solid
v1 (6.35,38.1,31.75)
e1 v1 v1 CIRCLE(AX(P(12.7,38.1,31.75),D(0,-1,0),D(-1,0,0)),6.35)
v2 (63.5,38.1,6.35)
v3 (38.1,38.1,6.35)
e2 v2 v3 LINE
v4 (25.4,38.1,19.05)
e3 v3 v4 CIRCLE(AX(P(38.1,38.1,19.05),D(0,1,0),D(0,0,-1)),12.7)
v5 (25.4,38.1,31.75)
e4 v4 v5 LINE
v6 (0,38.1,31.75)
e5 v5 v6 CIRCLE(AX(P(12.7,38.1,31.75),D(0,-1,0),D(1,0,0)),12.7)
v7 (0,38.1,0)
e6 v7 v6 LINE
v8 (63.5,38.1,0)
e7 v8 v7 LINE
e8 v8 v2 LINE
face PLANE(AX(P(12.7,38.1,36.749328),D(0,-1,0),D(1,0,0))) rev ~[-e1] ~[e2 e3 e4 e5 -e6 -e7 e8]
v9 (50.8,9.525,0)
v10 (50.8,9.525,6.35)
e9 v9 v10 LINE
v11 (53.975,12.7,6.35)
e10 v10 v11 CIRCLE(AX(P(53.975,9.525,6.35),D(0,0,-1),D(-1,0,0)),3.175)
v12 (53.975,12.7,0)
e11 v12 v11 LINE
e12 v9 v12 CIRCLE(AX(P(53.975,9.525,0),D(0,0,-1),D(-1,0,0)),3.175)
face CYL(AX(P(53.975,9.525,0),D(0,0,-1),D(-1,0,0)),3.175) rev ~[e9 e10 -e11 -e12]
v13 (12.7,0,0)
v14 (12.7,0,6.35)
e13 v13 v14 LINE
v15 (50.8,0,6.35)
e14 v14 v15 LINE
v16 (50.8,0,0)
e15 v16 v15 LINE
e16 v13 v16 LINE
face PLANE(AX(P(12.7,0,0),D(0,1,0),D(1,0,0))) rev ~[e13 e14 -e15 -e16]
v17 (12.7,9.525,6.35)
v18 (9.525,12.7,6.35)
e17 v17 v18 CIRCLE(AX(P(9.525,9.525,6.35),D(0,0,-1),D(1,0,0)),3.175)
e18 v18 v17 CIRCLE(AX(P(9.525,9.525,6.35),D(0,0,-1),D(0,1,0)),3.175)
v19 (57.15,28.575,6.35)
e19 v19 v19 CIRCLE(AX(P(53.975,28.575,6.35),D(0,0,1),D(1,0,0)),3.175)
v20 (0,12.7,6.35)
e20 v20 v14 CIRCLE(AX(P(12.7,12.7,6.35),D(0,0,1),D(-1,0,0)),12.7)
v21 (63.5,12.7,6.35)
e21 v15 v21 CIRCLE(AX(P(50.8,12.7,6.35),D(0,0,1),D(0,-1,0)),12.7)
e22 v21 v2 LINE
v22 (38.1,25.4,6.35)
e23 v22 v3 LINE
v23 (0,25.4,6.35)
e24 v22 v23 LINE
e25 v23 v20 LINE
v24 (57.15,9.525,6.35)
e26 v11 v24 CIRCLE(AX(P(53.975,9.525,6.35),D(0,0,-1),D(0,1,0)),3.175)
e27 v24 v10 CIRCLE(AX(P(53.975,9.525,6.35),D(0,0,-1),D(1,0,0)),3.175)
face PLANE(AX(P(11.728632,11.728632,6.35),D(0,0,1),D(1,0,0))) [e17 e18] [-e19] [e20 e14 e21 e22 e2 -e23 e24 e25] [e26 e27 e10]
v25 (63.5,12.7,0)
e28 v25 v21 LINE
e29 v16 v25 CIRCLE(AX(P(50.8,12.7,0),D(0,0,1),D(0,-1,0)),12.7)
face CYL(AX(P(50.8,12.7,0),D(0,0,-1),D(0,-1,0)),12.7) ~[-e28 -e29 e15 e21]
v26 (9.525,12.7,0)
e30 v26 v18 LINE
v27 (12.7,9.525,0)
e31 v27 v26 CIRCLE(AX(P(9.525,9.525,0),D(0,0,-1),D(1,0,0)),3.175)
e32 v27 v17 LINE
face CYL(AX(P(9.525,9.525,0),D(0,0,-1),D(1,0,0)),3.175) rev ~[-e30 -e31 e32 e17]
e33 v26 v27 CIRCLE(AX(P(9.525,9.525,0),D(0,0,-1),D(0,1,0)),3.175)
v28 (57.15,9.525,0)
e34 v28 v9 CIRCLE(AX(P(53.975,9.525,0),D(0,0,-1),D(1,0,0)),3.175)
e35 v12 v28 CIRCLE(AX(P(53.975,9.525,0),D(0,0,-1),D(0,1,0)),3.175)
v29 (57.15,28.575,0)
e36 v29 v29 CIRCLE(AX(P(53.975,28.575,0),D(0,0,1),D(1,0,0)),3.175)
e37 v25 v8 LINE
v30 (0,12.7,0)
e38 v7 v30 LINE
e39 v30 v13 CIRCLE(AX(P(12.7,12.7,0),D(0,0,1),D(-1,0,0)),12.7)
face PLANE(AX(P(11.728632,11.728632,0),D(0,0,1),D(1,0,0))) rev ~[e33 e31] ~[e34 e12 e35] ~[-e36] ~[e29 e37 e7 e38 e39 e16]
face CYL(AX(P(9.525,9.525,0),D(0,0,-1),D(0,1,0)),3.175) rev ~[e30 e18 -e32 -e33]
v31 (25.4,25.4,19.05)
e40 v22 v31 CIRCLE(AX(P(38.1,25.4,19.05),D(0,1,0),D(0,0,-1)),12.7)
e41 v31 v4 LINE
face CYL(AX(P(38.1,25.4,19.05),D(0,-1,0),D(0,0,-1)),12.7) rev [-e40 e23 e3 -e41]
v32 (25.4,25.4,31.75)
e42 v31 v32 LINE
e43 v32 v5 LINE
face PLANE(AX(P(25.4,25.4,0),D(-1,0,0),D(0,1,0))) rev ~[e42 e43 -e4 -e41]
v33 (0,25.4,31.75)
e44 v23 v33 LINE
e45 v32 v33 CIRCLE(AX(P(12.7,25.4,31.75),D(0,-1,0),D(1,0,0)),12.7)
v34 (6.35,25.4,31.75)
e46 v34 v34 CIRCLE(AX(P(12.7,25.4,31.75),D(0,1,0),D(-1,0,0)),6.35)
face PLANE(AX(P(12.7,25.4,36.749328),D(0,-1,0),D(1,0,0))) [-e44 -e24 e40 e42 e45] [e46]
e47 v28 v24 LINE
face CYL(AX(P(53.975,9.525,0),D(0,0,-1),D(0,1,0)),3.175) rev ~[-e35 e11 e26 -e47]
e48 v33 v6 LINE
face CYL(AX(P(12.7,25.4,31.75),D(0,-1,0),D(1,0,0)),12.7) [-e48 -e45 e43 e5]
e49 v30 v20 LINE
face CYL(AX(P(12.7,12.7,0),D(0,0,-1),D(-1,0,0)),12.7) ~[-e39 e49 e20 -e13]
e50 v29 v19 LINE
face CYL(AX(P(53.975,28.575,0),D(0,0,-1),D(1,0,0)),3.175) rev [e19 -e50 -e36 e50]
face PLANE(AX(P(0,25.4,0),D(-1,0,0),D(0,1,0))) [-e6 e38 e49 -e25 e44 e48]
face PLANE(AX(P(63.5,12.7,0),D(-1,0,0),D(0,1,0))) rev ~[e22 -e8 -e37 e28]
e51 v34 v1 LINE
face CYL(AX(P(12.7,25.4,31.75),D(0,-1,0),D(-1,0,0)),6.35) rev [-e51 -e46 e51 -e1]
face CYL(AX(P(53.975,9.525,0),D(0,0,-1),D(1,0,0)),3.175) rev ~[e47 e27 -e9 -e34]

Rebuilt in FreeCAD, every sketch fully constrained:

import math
import FreeCAD as App
import Part
import Sketcher
from FreeCAD import Vector
Q = App.Units.Quantity


def add_polygon(sketch, points):
    """Adds a closed chain of lines whose ends are joined by coincident constraints."""
    first, n = sketch.GeometryCount, len(points)
    for a, b in zip(points, points[1:] + points[:1]):
        sketch.addGeometry(Part.LineSegment(App.Vector(*a, 0), App.Vector(*b, 0)), False)
    for i in range(n):
        sketch.addConstraint(Sketcher.Constraint("Coincident", first + i, 2, first + (i + 1) % n, 1))

doc = App.newDocument("Part")
body = doc.addObject("PartDesign::Body", "Body")

sketch1 = doc.addObject("Sketcher::SketchObject", "Sketch")
body.addObject(sketch1)
sketch1.AttachmentSupport = (doc.XY_Plane, [""])
sketch1.MapMode = "FlatFace"
sketch1.addGeometry([
    Part.LineSegment(Vector(0, 25.4, 0), Vector(0, 12.7, 0)),
    Part.ArcOfCircle(Part.Circle(Vector(12.7, 12.7, 0), Vector(0, 0, 1), 12.7), math.radians(180), math.radians(270)),
    Part.LineSegment(Vector(12.7, 0, 0), Vector(50.8, 0, 0)),
    Part.ArcOfCircle(Part.Circle(Vector(50.8, 12.7, 0), Vector(0, 0, 1), 12.7), math.radians(-90), math.radians(0)),
    Part.LineSegment(Vector(63.5, 12.7, 0), Vector(63.5, 38.1, 0)),
    Part.LineSegment(Vector(63.5, 38.1, 0), Vector(25.4, 38.1, 0)),
    Part.LineSegment(Vector(25.4, 38.1, 0), Vector(25.4, 25.4, 0)),
    Part.LineSegment(Vector(25.4, 25.4, 0), Vector(0, 25.4, 0)),
    Part.LineSegment(Vector(9.525, 12.7, 0), Vector(12.7, 12.7, 0)),
    Part.LineSegment(Vector(12.7, 12.7, 0), Vector(12.7, 9.525, 0)),
    Part.ArcOfCircle(Part.Circle(Vector(9.525, 9.525, 0), Vector(0, 0, 1), 3.175), math.radians(90), math.radians(360)),
    Part.LineSegment(Vector(50.8, 9.525, 0), Vector(50.8, 12.7, 0)),
    Part.LineSegment(Vector(50.8, 12.7, 0), Vector(53.975, 12.7, 0)),
    Part.ArcOfCircle(Part.Circle(Vector(53.975, 9.525, 0), Vector(0, 0, 1), 3.175), math.radians(0), math.radians(90)),
    Part.ArcOfCircle(Part.Circle(Vector(53.975, 9.525, 0), Vector(0, 0, 1), 3.175), math.radians(180), math.radians(360)),
    Part.Circle(Vector(53.975, 28.575, 0), Vector(0, 0, 1), 3.175),
], False)
sketch1.addConstraint([
    Sketcher.Constraint("Tangent", 0, 2, 1, 1),
    Sketcher.Constraint("Tangent", 1, 2, 2, 1),
    Sketcher.Constraint("Tangent", 2, 2, 3, 1),
    Sketcher.Constraint("Tangent", 3, 2, 4, 1),
    Sketcher.Constraint("Coincident", 4, 2, 5, 1),
    Sketcher.Constraint("Coincident", 5, 2, 6, 1),
    Sketcher.Constraint("Coincident", 6, 2, 7, 1),
    Sketcher.Constraint("Coincident", 7, 2, 0, 1),
    Sketcher.Constraint("Coincident", 8, 2, 9, 1),
    Sketcher.Constraint("Tangent", 9, 2, 10, 2),
    Sketcher.Constraint("Tangent", 10, 1, 8, 1),
    Sketcher.Constraint("Coincident", 11, 2, 12, 1),
    Sketcher.Constraint("Tangent", 12, 2, 13, 2),
    Sketcher.Constraint("Tangent", 13, 1, 14, 2),
    Sketcher.Constraint("Tangent", 14, 1, 11, 1),
    Sketcher.Constraint("Vertical", 0),
    Sketcher.Constraint("Horizontal", 2),
    Sketcher.Constraint("Vertical", 4),
    Sketcher.Constraint("Horizontal", 5),
    Sketcher.Constraint("Vertical", 6),
    Sketcher.Constraint("Horizontal", 7),
    Sketcher.Constraint("Horizontal", 8),
    Sketcher.Constraint("Vertical", 9),
    Sketcher.Constraint("Vertical", 11),
    Sketcher.Constraint("Horizontal", 12),
    Sketcher.Constraint("Coincident", 8, 2, 1, 3),
    Sketcher.Constraint("Coincident", 11, 2, 3, 3),
    Sketcher.Constraint("Equal", 1, 3),
    Sketcher.Constraint("Equal", 10, 13),
    Sketcher.Constraint("Equal", 13, 14),
    Sketcher.Constraint("Equal", 14, 15),
    Sketcher.Constraint("PointOnObject", 0, 2, -2),
    Sketcher.Constraint("PointOnObject", 1, 2, -1),
    Sketcher.Constraint("Horizontal", 9, 2, 13, 1),
    Sketcher.Constraint("Vertical", 14, 3, 15, 3),
    Sketcher.Constraint("Equal", 2, 5),
    Sketcher.Constraint("Equal", 7, 4),
    Sketcher.Constraint("Equal", 0, 6),
    Sketcher.Constraint("Radius", 1, Q("0.5 in")),
    Sketcher.Constraint("Diameter", 15, Q("0.25 in")),
    Sketcher.Constraint("DistanceX", 2, 1, 2, 2, Q("1.5 in")),
    Sketcher.Constraint("DistanceY", 13, 3, 15, 3, Q("0.75 in")),
])
pad1 = doc.addObject("PartDesign::Pad", "Pad")
body.addObject(pad1)
pad1.Profile = sketch1
pad1.Length = Q("0.25 in")

sketch2 = doc.addObject("Sketcher::SketchObject", "Sketch001")
body.addObject(sketch2)
sketch2.AttachmentSupport = (doc.XY_Plane, [""])
sketch2.MapMode = "FlatFace"
add_polygon(sketch2, [(0, 38.1), (0, 25.4), (25.4, 25.4), (25.4, 38.1)])
sketch2.addConstraint([
    Sketcher.Constraint("Vertical", 0),
    Sketcher.Constraint("Horizontal", 1),
    Sketcher.Constraint("Vertical", 2),
    Sketcher.Constraint("Horizontal", 3),
    Sketcher.Constraint("PointOnObject", 0, 2, -2),
    Sketcher.Constraint("DistanceX", 1, 1, 1, 2, Q("1 in")),
    Sketcher.Constraint("DistanceY", 0, 2, 0, 1, Q("0.5 in")),
    Sketcher.Constraint("DistanceY", -1, 1, 0, 2, Q("1 in")),
])
pad2 = doc.addObject("PartDesign::Pad", "Pad001")
body.addObject(pad2)
pad2.Profile = sketch2
pad2.Length = Q("1.25 in")

sketch3 = doc.addObject("Sketcher::SketchObject", "Sketch002")
body.addObject(sketch3)
sketch3.AttachmentSupport = (doc.XZ_Plane, [""])
sketch3.MapMode = "FlatFace"
sketch3.AttachmentOffset = App.Placement(Vector(0, 0, -1 * 25.4), App.Rotation())
sketch3.addGeometry([
    Part.ArcOfCircle(Part.Circle(Vector(38.1, 19.05, 0), Vector(0, 0, 1), 12.7), math.radians(180), math.radians(270)),
    Part.LineSegment(Vector(25.4, 19.05, 0), Vector(25.4, 6.35, 0)),
    Part.LineSegment(Vector(25.4, 6.35, 0), Vector(38.1, 6.35, 0)),
], False)
sketch3.addConstraint([
    Sketcher.Constraint("Tangent", 0, 1, 1, 1),
    Sketcher.Constraint("Coincident", 1, 2, 2, 1),
    Sketcher.Constraint("Tangent", 2, 2, 0, 2),
    Sketcher.Constraint("Vertical", 1),
    Sketcher.Constraint("Horizontal", 2),
    Sketcher.Constraint("Radius", 0, Q("0.5 in")),
    Sketcher.Constraint("DistanceX", -1, 1, 0, 1, Q("1 in")),
    Sketcher.Constraint("DistanceY", -1, 1, 0, 3, Q("0.75 in")),
])
pad3 = doc.addObject("PartDesign::Pad", "Pad002")
body.addObject(pad3)
pad3.Profile = sketch3
pad3.Length = Q("0.5 in")
pad3.Reversed = True

sketch4 = doc.addObject("Sketcher::SketchObject", "Sketch003")
body.addObject(sketch4)
sketch4.AttachmentSupport = (doc.XZ_Plane, [""])
sketch4.MapMode = "FlatFace"
sketch4.AttachmentOffset = App.Placement(Vector(0, 0, -1 * 25.4), App.Rotation())
sketch4.addGeometry(Part.Circle(Vector(12.7, 31.75, 0), Vector(0, 0, 1), 6.35), False)
sketch4.addConstraint([
    Sketcher.Constraint("Diameter", 0, Q("0.5 in")),
    Sketcher.Constraint("DistanceX", -1, 1, 0, 3, Q("0.5 in")),
    Sketcher.Constraint("DistanceY", -1, 1, 0, 3, Q("1.25 in")),
])
pocket1 = doc.addObject("PartDesign::Pocket", "Pocket")
body.addObject(pocket1)
pocket1.Profile = sketch4
pocket1.Length = Q("0.5 in")

sketch5 = doc.addObject("Sketcher::SketchObject", "Sketch004")
body.addObject(sketch5)
sketch5.AttachmentSupport = (doc.XZ_Plane, [""])
sketch5.MapMode = "FlatFace"
sketch5.AttachmentOffset = App.Placement(Vector(0, 0, -1 * 25.4), App.Rotation())
sketch5.addGeometry([
    Part.LineSegment(Vector(19.05, 31.75, 0), Vector(25.4, 31.75, 0)),
    Part.ArcOfCircle(Part.Circle(Vector(12.7, 31.75, 0), Vector(0, 0, 1), 12.7), math.radians(0), math.radians(180)),
    Part.LineSegment(Vector(0, 31.75, 0), Vector(6.35, 31.75, 0)),
    Part.ArcOfCircle(Part.Circle(Vector(12.7, 31.75, 0), Vector(0, 0, 1), 6.35), math.radians(0), math.radians(180)),
], False)
sketch5.addConstraint([
    Sketcher.Constraint("Coincident", 0, 2, 1, 1),
    Sketcher.Constraint("Coincident", 1, 2, 2, 1),
    Sketcher.Constraint("Coincident", 2, 2, 3, 2),
    Sketcher.Constraint("Coincident", 3, 1, 0, 1),
    Sketcher.Constraint("Horizontal", 0),
    Sketcher.Constraint("Horizontal", 2),
    Sketcher.Constraint("Coincident", 3, 3, 1, 3),
    Sketcher.Constraint("PointOnObject", 1, 2, -2),
    Sketcher.Constraint("Horizontal", 3, 3, 0, 2),
    Sketcher.Constraint("Horizontal", 0, 2, 1, 2),
    Sketcher.Constraint("Radius", 1, Q("0.5 in")),
    Sketcher.Constraint("Radius", 3, Q("0.25 in")),
    Sketcher.Constraint("DistanceY", -1, 1, 1, 3, Q("1.25 in")),
])
pad4 = doc.addObject("PartDesign::Pad", "Pad003")
body.addObject(pad4)
pad4.Profile = sketch5
pad4.Length = Q("0.5 in")
pad4.Reversed = True

sketch6 = doc.addObject("Sketcher::SketchObject", "Sketch005")
body.addObject(sketch6)
sketch6.AttachmentSupport = (doc.XY_Plane, [""])
sketch6.MapMode = "FlatFace"
sketch6.addGeometry([
    Part.LineSegment(Vector(12.7, 12.7, 0), Vector(9.525, 12.7, 0)),
    Part.ArcOfCircle(Part.Circle(Vector(9.525, 9.525, 0), Vector(0, 0, 1), 3.175), math.radians(0), math.radians(90)),
    Part.LineSegment(Vector(12.7, 9.525, 0), Vector(12.7, 12.7, 0)),
    Part.LineSegment(Vector(50.8, 12.7, 0), Vector(50.8, 9.525, 0)),
    Part.ArcOfCircle(Part.Circle(Vector(53.975, 9.525, 0), Vector(0, 0, 1), 3.175), math.radians(90), math.radians(180)),
    Part.LineSegment(Vector(53.975, 12.7, 0), Vector(50.8, 12.7, 0)),
], False)
sketch6.addConstraint([
    Sketcher.Constraint("Tangent", 0, 2, 1, 2),
    Sketcher.Constraint("Tangent", 1, 1, 2, 1),
    Sketcher.Constraint("Coincident", 2, 2, 0, 1),
    Sketcher.Constraint("Tangent", 3, 2, 4, 2),
    Sketcher.Constraint("Tangent", 4, 1, 5, 1),
    Sketcher.Constraint("Coincident", 5, 2, 3, 1),
    Sketcher.Constraint("Horizontal", 0),
    Sketcher.Constraint("Vertical", 2),
    Sketcher.Constraint("Vertical", 3),
    Sketcher.Constraint("Horizontal", 5),
    Sketcher.Constraint("Equal", 1, 4),
    Sketcher.Constraint("Horizontal", 1, 3, 4, 3),
    Sketcher.Constraint("DistanceX", -1, 1, 3, 2, Q("2 in")),
    Sketcher.Constraint("Radius", 1, Q("0.125 in")),
    Sketcher.Constraint("DistanceY", -1, 1, 0, 2, Q("0.5 in")),
    Sketcher.Constraint("DistanceX", -1, 1, 1, 1, Q("0.5 in")),
])
pad5 = doc.addObject("PartDesign::Pad", "Pad004")
body.addObject(pad5)
pad5.Profile = sketch6
pad5.Length = Q("0.25 in")

doc.recompute()
